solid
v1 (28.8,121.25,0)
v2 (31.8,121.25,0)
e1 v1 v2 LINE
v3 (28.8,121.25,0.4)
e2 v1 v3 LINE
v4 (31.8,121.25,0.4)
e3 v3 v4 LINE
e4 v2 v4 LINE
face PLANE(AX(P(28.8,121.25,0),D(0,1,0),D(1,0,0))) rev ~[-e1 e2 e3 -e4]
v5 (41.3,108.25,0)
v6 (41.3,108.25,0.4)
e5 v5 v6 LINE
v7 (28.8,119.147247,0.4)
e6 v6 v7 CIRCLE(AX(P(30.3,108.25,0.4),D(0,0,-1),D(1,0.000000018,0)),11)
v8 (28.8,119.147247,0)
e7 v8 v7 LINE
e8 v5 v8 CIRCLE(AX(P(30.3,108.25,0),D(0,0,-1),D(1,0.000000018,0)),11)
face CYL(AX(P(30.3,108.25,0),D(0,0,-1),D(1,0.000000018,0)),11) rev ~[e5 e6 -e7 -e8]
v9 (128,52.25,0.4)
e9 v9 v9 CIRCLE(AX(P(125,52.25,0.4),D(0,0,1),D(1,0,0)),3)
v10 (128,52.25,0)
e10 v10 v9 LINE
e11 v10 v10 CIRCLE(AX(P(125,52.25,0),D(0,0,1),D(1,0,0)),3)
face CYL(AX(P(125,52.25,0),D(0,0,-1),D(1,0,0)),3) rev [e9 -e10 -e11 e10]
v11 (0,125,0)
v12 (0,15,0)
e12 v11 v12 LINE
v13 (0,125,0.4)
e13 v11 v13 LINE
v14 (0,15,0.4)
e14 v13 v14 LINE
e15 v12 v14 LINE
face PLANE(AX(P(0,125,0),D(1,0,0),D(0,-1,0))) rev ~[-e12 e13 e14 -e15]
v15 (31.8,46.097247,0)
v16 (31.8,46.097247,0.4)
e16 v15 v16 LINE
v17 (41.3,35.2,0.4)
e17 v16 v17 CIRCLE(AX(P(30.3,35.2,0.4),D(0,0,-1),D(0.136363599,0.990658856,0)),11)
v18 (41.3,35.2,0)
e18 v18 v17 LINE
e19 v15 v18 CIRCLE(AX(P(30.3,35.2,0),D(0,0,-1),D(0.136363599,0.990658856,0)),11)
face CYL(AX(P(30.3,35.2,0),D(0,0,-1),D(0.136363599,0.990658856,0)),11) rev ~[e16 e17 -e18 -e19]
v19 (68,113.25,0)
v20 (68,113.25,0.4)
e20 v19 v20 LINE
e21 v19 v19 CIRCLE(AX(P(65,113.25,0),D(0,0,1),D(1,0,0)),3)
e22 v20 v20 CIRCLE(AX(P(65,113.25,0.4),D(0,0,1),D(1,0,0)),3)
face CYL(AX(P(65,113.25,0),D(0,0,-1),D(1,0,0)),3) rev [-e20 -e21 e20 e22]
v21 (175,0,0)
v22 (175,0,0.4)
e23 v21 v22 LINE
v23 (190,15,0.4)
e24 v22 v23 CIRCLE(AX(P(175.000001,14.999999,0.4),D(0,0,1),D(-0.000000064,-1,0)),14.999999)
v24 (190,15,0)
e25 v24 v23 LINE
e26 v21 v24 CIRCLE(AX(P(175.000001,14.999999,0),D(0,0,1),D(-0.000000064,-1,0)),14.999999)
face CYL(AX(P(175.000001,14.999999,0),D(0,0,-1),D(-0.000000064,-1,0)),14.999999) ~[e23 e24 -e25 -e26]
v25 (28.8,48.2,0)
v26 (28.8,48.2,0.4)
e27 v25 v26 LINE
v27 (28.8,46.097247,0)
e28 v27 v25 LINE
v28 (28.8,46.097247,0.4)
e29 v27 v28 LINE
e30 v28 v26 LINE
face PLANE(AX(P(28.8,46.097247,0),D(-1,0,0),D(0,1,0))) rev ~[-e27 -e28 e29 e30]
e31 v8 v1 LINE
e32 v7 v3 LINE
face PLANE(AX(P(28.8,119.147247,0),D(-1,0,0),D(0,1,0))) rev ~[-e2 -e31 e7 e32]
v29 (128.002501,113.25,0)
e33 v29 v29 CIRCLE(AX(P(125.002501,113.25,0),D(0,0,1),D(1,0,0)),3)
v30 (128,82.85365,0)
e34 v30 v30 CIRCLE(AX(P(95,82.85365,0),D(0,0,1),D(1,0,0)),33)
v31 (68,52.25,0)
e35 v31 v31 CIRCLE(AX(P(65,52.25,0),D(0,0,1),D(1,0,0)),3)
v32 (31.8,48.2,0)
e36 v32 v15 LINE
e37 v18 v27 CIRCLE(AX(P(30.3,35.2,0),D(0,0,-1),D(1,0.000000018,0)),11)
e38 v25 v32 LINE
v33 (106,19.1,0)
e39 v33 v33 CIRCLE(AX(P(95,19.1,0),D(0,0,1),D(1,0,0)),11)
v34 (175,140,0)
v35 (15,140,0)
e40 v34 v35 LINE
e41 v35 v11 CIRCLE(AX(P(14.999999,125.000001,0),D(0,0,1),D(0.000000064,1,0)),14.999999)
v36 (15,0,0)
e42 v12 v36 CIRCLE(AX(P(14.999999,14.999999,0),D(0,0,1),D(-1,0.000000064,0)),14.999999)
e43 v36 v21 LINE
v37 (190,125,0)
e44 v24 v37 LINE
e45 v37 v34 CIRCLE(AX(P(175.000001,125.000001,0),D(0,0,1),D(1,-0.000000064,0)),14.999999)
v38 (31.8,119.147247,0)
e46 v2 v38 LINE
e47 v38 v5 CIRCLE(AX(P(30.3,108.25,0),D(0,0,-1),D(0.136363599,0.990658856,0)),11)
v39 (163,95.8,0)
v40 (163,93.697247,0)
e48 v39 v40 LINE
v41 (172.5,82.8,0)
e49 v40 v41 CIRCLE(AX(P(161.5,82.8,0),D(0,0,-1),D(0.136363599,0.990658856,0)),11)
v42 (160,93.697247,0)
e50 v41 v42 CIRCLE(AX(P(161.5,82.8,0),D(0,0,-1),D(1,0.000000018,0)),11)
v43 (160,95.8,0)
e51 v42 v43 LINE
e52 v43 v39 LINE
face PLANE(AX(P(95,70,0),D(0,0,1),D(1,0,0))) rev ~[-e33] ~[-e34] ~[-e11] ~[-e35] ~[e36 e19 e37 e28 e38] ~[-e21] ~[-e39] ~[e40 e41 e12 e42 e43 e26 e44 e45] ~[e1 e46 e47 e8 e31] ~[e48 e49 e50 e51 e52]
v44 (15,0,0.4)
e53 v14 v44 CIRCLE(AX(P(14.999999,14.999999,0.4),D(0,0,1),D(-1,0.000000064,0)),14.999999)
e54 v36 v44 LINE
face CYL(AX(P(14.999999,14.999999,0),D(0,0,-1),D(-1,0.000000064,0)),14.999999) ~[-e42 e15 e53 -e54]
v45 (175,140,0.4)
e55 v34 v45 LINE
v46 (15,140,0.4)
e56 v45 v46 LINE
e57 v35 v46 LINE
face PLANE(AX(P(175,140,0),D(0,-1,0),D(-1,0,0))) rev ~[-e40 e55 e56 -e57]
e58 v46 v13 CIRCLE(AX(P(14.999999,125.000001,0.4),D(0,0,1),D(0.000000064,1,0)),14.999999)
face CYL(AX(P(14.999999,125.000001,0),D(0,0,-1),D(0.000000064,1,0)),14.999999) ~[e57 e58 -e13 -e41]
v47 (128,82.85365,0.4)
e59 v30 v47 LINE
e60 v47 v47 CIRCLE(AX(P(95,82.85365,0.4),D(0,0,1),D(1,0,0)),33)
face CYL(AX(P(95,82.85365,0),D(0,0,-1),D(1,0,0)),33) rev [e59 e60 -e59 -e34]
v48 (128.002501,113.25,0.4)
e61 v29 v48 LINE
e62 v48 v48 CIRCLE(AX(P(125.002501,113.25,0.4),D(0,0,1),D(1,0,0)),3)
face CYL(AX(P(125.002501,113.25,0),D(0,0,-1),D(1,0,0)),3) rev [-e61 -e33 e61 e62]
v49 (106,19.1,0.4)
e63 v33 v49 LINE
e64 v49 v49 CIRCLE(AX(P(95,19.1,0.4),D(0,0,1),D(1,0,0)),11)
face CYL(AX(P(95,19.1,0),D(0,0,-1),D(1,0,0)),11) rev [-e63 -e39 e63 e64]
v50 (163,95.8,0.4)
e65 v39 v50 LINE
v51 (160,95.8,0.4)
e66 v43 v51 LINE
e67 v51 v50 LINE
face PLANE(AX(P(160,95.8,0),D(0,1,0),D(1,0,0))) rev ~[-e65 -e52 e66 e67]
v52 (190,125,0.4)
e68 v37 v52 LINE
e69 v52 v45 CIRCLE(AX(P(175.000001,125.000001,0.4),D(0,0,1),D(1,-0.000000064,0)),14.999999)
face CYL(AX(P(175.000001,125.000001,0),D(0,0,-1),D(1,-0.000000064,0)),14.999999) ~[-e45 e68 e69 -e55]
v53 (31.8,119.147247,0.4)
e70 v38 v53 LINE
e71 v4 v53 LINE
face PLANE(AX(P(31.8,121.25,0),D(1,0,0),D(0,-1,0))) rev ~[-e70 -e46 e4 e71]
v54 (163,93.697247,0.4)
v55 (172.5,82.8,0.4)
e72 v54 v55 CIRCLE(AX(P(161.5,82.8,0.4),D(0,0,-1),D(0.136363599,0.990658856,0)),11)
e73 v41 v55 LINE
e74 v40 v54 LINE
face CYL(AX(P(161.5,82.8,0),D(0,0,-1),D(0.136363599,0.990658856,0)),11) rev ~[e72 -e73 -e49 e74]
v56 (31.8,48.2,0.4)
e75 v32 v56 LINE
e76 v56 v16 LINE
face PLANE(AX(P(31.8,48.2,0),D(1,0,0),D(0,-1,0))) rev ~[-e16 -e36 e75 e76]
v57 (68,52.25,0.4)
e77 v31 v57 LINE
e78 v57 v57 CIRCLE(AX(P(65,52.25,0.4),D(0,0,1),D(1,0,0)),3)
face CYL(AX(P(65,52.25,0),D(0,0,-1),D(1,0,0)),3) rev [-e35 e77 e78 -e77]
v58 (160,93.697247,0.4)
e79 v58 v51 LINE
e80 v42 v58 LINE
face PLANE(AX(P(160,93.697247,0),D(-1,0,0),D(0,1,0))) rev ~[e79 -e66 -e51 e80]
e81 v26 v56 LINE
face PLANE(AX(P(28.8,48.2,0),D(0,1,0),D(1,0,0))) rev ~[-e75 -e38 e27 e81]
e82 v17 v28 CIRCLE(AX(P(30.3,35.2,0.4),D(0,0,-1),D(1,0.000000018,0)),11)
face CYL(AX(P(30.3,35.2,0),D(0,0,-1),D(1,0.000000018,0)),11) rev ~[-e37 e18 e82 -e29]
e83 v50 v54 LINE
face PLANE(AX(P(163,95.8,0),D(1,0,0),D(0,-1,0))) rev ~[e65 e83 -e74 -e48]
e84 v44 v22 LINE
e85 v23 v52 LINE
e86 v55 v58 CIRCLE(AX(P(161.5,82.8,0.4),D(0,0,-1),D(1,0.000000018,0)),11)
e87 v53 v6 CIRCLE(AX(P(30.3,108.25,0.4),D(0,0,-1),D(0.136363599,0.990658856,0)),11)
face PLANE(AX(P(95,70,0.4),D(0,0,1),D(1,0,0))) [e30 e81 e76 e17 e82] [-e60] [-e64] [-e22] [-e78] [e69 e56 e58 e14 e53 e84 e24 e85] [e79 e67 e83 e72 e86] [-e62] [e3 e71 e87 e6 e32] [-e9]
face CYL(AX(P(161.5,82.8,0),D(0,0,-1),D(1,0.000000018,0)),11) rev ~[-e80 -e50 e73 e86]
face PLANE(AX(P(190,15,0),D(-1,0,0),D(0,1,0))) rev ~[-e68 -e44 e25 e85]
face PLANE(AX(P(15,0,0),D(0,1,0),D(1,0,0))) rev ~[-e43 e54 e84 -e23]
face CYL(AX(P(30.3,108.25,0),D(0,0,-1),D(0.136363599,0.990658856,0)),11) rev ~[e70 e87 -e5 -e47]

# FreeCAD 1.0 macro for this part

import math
import FreeCAD as App
import Part
import Sketcher
from FreeCAD import Vector
Q = App.Units.Quantity

doc = App.newDocument("Part")
body = doc.addObject("PartDesign::Body", "Body")

# Sketch on XY plane
sketch1 = body.newObject("Sketcher::SketchObject", "Sketch")
sketch1.AttachmentSupport = (doc.getObject("XY_Plane"), [""])
sketch1.MapMode = "FlatFace"
sketch1.addGeometry([
    Part.ArcOfCircle(Part.Circle(Vector(15, 15, 0), Vector(0, 0, 1), 15), math.radians(180), math.radians(270)),  # 0
    Part.LineSegment(Vector(15, 0, 0), Vector(175, 0, 0)),  # 1
    Part.ArcOfCircle(Part.Circle(Vector(175, 15, 0), Vector(0, 0, 1), 15), math.radians(-90), math.radians(0)),  # 2
    Part.LineSegment(Vector(190, 15, 0), Vector(190, 125, 0)),  # 3
    Part.ArcOfCircle(Part.Circle(Vector(175, 125, 0), Vector(0, 0, 1), 15), math.radians(0), math.radians(90)),  # 4
    Part.LineSegment(Vector(175, 140, 0), Vector(15, 140, 0)),  # 5
    Part.ArcOfCircle(Part.Circle(Vector(15, 125, 0), Vector(0, 0, 1), 15), math.radians(90), math.radians(180)),  # 6
    Part.LineSegment(Vector(0, 125, 0), Vector(0, 15, 0)),  # 7
    Part.LineSegment(Vector(31.8, 48.2, 0), Vector(31.8, 46.1, 0)),  # 8
    Part.ArcOfCircle(Part.Circle(Vector(30.3, 35.2, 0), Vector(0, 0, 1), 11), math.radians(0), math.radians(82)),  # 9
    Part.ArcOfCircle(Part.Circle(Vector(30.3, 35.2, 0), Vector(0, 0, 1), 11), math.radians(98), math.radians(360)),  # 10
    Part.LineSegment(Vector(28.8, 46.1, 0), Vector(28.8, 48.2, 0)),  # 11
    Part.LineSegment(Vector(28.8, 48.2, 0), Vector(31.8, 48.2, 0)),  # 12
    Part.Circle(Vector(95, 19.1, 0), Vector(0, 0, 1), 11),  # 13
    Part.Circle(Vector(65, 52.2, 0), Vector(0, 0, 1), 3),  # 14
    Part.Circle(Vector(125, 52.2, 0), Vector(0, 0, 1), 3),  # 15
    Part.Circle(Vector(95, 82.9, 0), Vector(0, 0, 1), 33),  # 16
    Part.LineSegment(Vector(31.8, 121.2, 0), Vector(31.8, 119.1, 0)),  # 17
    Part.ArcOfCircle(Part.Circle(Vector(30.3, 108.3, 0), Vector(0, 0, 1), 11), math.radians(0), math.radians(82)),  # 18
    Part.ArcOfCircle(Part.Circle(Vector(30.3, 108.2, 0), Vector(0, 0, 1), 11), math.radians(98), math.radians(360)),  # 19
    Part.LineSegment(Vector(28.8, 119.1, 0), Vector(28.8, 121.2, 0)),  # 20
    Part.LineSegment(Vector(28.8, 121.2, 0), Vector(31.8, 121.2, 0)),  # 21
    Part.Circle(Vector(65, 113.2, 0), Vector(0, 0, 1), 3),  # 22
    Part.LineSegment(Vector(163, 95.8, 0), Vector(163, 93.7, 0)),  # 23
    Part.ArcOfCircle(Part.Circle(Vector(161.5, 82.8, 0), Vector(0, 0, 1), 11), math.radians(0), math.radians(82)),  # 24
    Part.ArcOfCircle(Part.Circle(Vector(161.5, 82.8, 0), Vector(0, 0, 1), 11), math.radians(98), math.radians(360)),  # 25
    Part.LineSegment(Vector(160, 93.7, 0), Vector(160, 95.8, 0)),  # 26
    Part.LineSegment(Vector(160, 95.8, 0), Vector(163, 95.8, 0)),  # 27
    Part.Circle(Vector(125, 113.2, 0), Vector(0, 0, 1), 3),  # 28
], False)
sketch1.addConstraint([
    Sketcher.Constraint("Tangent", 0, 2, 1, 1),
    Sketcher.Constraint("Tangent", 1, 2, 2, 1),
    Sketcher.Constraint("Tangent", 2, 2, 3, 1),
    Sketcher.Constraint("Tangent", 3, 2, 4, 1),
    Sketcher.Constraint("Tangent", 4, 2, 5, 1),
    Sketcher.Constraint("Tangent", 5, 2, 6, 1),
    Sketcher.Constraint("Tangent", 6, 2, 7, 1),
    Sketcher.Constraint("Tangent", 7, 2, 0, 1),
    Sketcher.Constraint("Coincident", 8, 2, 9, 2),
    Sketcher.Constraint("Tangent", 9, 1, 10, 2),
    Sketcher.Constraint("Coincident", 10, 1, 11, 1),
    Sketcher.Constraint("Coincident", 11, 2, 12, 1),
    Sketcher.Constraint("Coincident", 12, 2, 8, 1),
    Sketcher.Constraint("Coincident", 17, 2, 18, 2),
    Sketcher.Constraint("Tangent", 18, 1, 19, 2),
    Sketcher.Constraint("Coincident", 19, 1, 20, 1),
    Sketcher.Constraint("Coincident", 20, 2, 21, 1),
    Sketcher.Constraint("Coincident", 21, 2, 17, 1),
    Sketcher.Constraint("Coincident", 23, 2, 24, 2),
    Sketcher.Constraint("Tangent", 24, 1, 25, 2),
    Sketcher.Constraint("Coincident", 25, 1, 26, 1),
    Sketcher.Constraint("Coincident", 26, 2, 27, 1),
    Sketcher.Constraint("Coincident", 27, 2, 23, 1),
    Sketcher.Constraint("Horizontal", 1),
    Sketcher.Constraint("Vertical", 3),
    Sketcher.Constraint("Horizontal", 5),
    Sketcher.Constraint("Vertical", 7),
    Sketcher.Constraint("Vertical", 8),
    Sketcher.Constraint("Vertical", 11),
    Sketcher.Constraint("Horizontal", 12),
    Sketcher.Constraint("Vertical", 17),
    Sketcher.Constraint("Vertical", 20),
    Sketcher.Constraint("Horizontal", 21),
    Sketcher.Constraint("Vertical", 23),
    Sketcher.Constraint("Vertical", 26),
    Sketcher.Constraint("Horizontal", 27),
    Sketcher.Constraint("Equal", 0, 2),
    Sketcher.Constraint("Equal", 2, 4),
    Sketcher.Constraint("Equal", 4, 6),
    Sketcher.Constraint("Equal", 9, 10),
    Sketcher.Constraint("Equal", 10, 13),
    Sketcher.Constraint("Equal", 14, 15),
    Sketcher.Constraint("Equal", 13, 18),
    Sketcher.Constraint("Equal", 18, 19),
    Sketcher.Constraint("Equal", 15, 22),
    Sketcher.Constraint("Equal", 19, 24),
    Sketcher.Constraint("Equal", 24, 25),
    Sketcher.Constraint("Equal", 22, 28),
    Sketcher.Constraint("PointOnObject", 0, 2, -1),
    Sketcher.Constraint("PointOnObject", 6, 2, -2),
    Sketcher.Constraint("Horizontal", 14, 3, 15, 3),
    Sketcher.Constraint("Horizontal", 22, 3, 28, 3),
    Sketcher.Constraint("Horizontal", 10, 3, 9, 1),
    Sketcher.Constraint("Horizontal", 8, 2, 10, 1),
    Sketcher.Constraint("Horizontal", 19, 3, 18, 1),
    Sketcher.Constraint("Horizontal", 17, 2, 19, 1),
    Sketcher.Constraint("Horizontal", 25, 3, 24, 1),
    Sketcher.Constraint("Horizontal", 23, 2, 25, 1),
    Sketcher.Constraint("Vertical", 13, 3, 16, 3),
    Sketcher.Constraint("Vertical", 10, 3, 18, 3),
    Sketcher.Constraint("Vertical", 14, 3, 22, 3),
    Sketcher.Constraint("Vertical", 12, 2, 17, 2),
    Sketcher.Constraint("Equal", 21, 27),
    Sketcher.Constraint("Equal", 11, 17),
    Sketcher.Constraint("Equal", 20, 23),
    Sketcher.Constraint("Diameter", 13, Q("22 mm")),
    Sketcher.Constraint("Diameter", 14, Q("6 mm")),
    Sketcher.Constraint("Diameter", 16, Q("66 mm")),
    Sketcher.Constraint("Radius", 0, Q("14.999999 mm")),
    Sketcher.Constraint("DistanceX", 1, 1, 1, 2, Q("160 mm")),
    Sketcher.Constraint("DistanceX", 12, 1, 12, 2, Q("3 mm")),
    Sketcher.Constraint("DistanceY", 3, 1, 3, 2, Q("110 mm")),
    Sketcher.Constraint("DistanceX", -1, 1, 13, 3, Q("95 mm")),
    Sketcher.Constraint("DistanceX", -1, 1, 14, 3, Q("65 mm")),
    Sketcher.Constraint("DistanceX", -1, 1, 15, 3, Q("125 mm")),
    Sketcher.Constraint("DistanceX", -1, 1, 23, 2, Q("163 mm")),
    Sketcher.Constraint("DistanceY", 14, 3, 18, 3, Q("56 mm")),
    Sketcher.Constraint("DistanceY", 18, 3, 22, 3, Q("5 mm")),
    Sketcher.Constraint("DistanceY", 9, 3, 11, 2, Q("13 mm")),
    Sketcher.Constraint("DistanceX", -1, 1, 9, 3, Q("30.3 mm")),
    Sketcher.Constraint("DistanceY", -1, 1, 9, 3, Q("35.2 mm")),
    Sketcher.Constraint("DistanceY", -1, 1, 13, 3, Q("19.1 mm")),
    Sketcher.Constraint("DistanceY", -1, 1, 24, 3, Q("82.8 mm")),
    Sketcher.Constraint("DistanceY", -1, 1, 14, 3, Q("52.25 mm")),
    Sketcher.Constraint("DistanceX", -1, 1, 28, 3, Q("125.002501 mm")),
    Sketcher.Constraint("DistanceY", -1, 1, 16, 3, Q("82.85365 mm")),
])
pad1 = body.newObject("PartDesign::Pad", "Pad")
pad1.Profile = sketch1
pad1.Length = 0.4

doc.recompute()
